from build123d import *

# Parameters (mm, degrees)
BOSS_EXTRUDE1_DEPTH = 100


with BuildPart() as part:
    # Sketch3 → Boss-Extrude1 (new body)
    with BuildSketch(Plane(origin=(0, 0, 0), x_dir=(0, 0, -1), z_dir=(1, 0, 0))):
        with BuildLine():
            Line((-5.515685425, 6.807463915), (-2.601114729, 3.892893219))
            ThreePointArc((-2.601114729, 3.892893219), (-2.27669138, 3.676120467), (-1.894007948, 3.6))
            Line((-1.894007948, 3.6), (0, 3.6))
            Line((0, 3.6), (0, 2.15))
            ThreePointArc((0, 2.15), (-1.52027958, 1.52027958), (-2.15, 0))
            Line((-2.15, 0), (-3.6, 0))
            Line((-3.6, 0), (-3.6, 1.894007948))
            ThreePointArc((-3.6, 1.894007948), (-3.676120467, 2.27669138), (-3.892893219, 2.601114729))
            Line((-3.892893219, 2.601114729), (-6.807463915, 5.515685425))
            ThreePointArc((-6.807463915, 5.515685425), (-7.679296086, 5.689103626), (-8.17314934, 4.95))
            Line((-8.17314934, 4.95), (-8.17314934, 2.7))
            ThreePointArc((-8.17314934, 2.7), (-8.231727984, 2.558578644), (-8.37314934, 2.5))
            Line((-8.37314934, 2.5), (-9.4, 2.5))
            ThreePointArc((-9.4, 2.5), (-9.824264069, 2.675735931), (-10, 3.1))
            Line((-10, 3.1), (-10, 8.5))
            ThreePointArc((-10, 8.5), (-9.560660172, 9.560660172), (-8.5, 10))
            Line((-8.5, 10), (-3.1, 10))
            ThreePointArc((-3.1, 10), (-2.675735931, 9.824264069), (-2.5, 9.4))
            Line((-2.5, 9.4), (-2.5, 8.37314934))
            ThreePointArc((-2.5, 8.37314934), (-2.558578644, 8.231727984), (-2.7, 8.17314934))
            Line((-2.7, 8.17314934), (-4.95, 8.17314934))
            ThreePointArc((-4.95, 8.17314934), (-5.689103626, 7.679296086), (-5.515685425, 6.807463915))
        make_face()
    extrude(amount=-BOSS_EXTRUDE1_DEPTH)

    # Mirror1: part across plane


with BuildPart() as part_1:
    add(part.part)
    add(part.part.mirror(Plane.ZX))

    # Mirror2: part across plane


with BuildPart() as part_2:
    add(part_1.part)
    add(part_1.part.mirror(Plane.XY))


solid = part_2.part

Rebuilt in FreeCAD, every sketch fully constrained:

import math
import FreeCAD as App
import Part
import Sketcher

V = App.Vector
Q = App.Units.Quantity

doc = App.newDocument("Part")
params = doc.addObject("Spreadsheet::Sheet", "Params")
for row, (alias, value) in enumerate([
    ("sketch1_radius", "1 mm"),
    ("sketch1_radius2", "0.8 mm"),
    ("sketch1_radius3", "0.2 mm"),
    ("sketch1_radius4", "0.6 mm"),
    ("sketch1_radius5", "1.5 mm"),
    ("pad1_length", "100 mm"),
], start=1):
    params.set(f"A{row}", alias)
    params.set(f"B{row}", "=" + value)
    params.setAlias(f"B{row}", alias)

body = doc.addObject("PartDesign::Body", "Body")

# Sketch on YZ plane
sketch1 = body.newObject("Sketcher::SketchObject", "Sketch")
sketch1.AttachmentSupport = (doc.getObject("YZ_Plane"), [""])
sketch1.MapMode = "FlatFace"
sketch1.addGeometry([
    Part.LineSegment(V(3.892893, 2.601115, 0), V(6.807464, 5.515685, 0)),  # 0
    Part.ArcOfCircle(Part.Circle(V(7.373149, 4.95, 0), V(0, 0, 1), 0.8), math.radians(0), math.radians(135)),  # 1
    Part.LineSegment(V(8.173149, 4.95, 0), V(8.173149, 2.7, 0)),  # 2
    Part.ArcOfCircle(Part.Circle(V(8.373149, 2.7, 0), V(0, 0, 1), 0.2), math.radians(-180), math.radians(-90)),  # 3
    Part.LineSegment(V(8.373149, 2.5, 0), V(9.4, 2.5, 0)),  # 4
    Part.ArcOfCircle(Part.Circle(V(9.4, 3.1, 0), V(0, 0, 1), 0.6), math.radians(-90), math.radians(0)),  # 5
    Part.LineSegment(V(10, 3.1, 0), V(10, 8.5, 0)),  # 6
    Part.ArcOfCircle(Part.Circle(V(8.5, 8.5, 0), V(0, 0, 1), 1.5), math.radians(0), math.radians(90)),  # 7
    Part.LineSegment(V(8.5, 10, 0), V(3.1, 10, 0)),  # 8
    Part.ArcOfCircle(Part.Circle(V(3.1, 9.4, 0), V(0, 0, 1), 0.6), math.radians(90), math.radians(180)),  # 9
    Part.LineSegment(V(2.5, 9.4, 0), V(2.5, 8.373149, 0)),  # 10
    Part.ArcOfCircle(Part.Circle(V(2.7, 8.373149, 0), V(0, 0, 1), 0.2), math.radians(-180), math.radians(-90)),  # 11
    Part.LineSegment(V(2.7, 8.173149, 0), V(4.95, 8.173149, 0)),  # 12
    Part.ArcOfCircle(Part.Circle(V(4.95, 7.373149, 0), V(0, 0, 1), 0.8), math.radians(-45), math.radians(90)),  # 13
    Part.LineSegment(V(5.515685, 6.807464, 0), V(2.601115, 3.892893, 0)),  # 14
    Part.ArcOfCircle(Part.Circle(V(1.894008, 4.6, 0), V(0, 0, 1), 1), math.radians(-90), math.radians(-45)),  # 15
    Part.LineSegment(V(1.894008, 3.6, 0), V(0, 3.6, 0)),  # 16
    Part.LineSegment(V(0, 3.6, 0), V(0, 2.15, 0)),  # 17
    Part.ArcOfCircle(Part.Circle(V(0, 0, 0), V(0, 0, 1), 2.15), math.radians(0), math.radians(90)),  # 18
    Part.LineSegment(V(2.15, 0, 0), V(3.6, 0, 0)),  # 19
    Part.LineSegment(V(3.6, 0, 0), V(3.6, 1.894008, 0)),  # 20
    Part.ArcOfCircle(Part.Circle(V(4.6, 1.894008, 0), V(0, 0, 1), 1), math.radians(135), math.radians(180)),  # 21
], False)
sketch1.addConstraint([
    Sketcher.Constraint("Tangent", 0, 2, 1, 2),
    Sketcher.Constraint("Tangent", 1, 1, 2, 1),
    Sketcher.Constraint("Tangent", 2, 2, 3, 1),
    Sketcher.Constraint("Tangent", 3, 2, 4, 1),
    Sketcher.Constraint("Tangent", 4, 2, 5, 1),
    Sketcher.Constraint("Tangent", 5, 2, 6, 1),
    Sketcher.Constraint("Tangent", 6, 2, 7, 1),
    Sketcher.Constraint("Tangent", 7, 2, 8, 1),
    Sketcher.Constraint("Tangent", 8, 2, 9, 1),
    Sketcher.Constraint("Tangent", 9, 2, 10, 1),
    Sketcher.Constraint("Tangent", 10, 2, 11, 1),
    Sketcher.Constraint("Tangent", 11, 2, 12, 1),
    Sketcher.Constraint("Tangent", 12, 2, 13, 2),
    Sketcher.Constraint("Tangent", 13, 1, 14, 1),
    Sketcher.Constraint("Tangent", 14, 2, 15, 2),
    Sketcher.Constraint("Tangent", 15, 1, 16, 1),
    Sketcher.Constraint("Coincident", 16, 2, 17, 1),
    Sketcher.Constraint("Coincident", 17, 2, 18, 2),
    Sketcher.Constraint("Coincident", 18, 1, 19, 1),
    Sketcher.Constraint("Coincident", 19, 2, 20, 1),
    Sketcher.Constraint("Tangent", 20, 2, 21, 2),
    Sketcher.Constraint("Tangent", 21, 1, 0, 1),
    Sketcher.Constraint("Vertical", 2),
    Sketcher.Constraint("Horizontal", 4),
    Sketcher.Constraint("Vertical", 6),
    Sketcher.Constraint("Horizontal", 8),
    Sketcher.Constraint("Vertical", 10),
    Sketcher.Constraint("Horizontal", 12),
    Sketcher.Constraint("Horizontal", 16),
    Sketcher.Constraint("Vertical", 17),
    Sketcher.Constraint("Horizontal", 19),
    Sketcher.Constraint("Vertical", 20),
    Sketcher.Constraint("Coincident", 18, 3, -1, 1),
    Sketcher.Constraint("Equal", 5, 9),
    Sketcher.Constraint("Equal", 3, 11),
    Sketcher.Constraint("Equal", 1, 13),
    Sketcher.Constraint("Equal", 15, 21),
    Sketcher.Constraint("PointOnObject", 16, 2, -2),
    Sketcher.Constraint("PointOnObject", 18, 1, -1),
    Sketcher.Constraint("Parallel", 0, 14),
    Sketcher.Constraint("Equal", 12, 2),
    Sketcher.Constraint("Equal", 8, 6),
    Sketcher.Constraint("Equal", 4, 10),
    Sketcher.Constraint("Equal", 19, 17),
    Sketcher.Constraint("Equal", 16, 20),
    Sketcher.Constraint("Equal", 0, 14),
    Sketcher.Constraint("Radius", 15, Q("1 mm")),
    Sketcher.Constraint("Radius", 1, Q("0.8 mm")),
    Sketcher.Constraint("Radius", 3, Q("0.2 mm")),
    Sketcher.Constraint("Radius", 5, Q("0.6 mm")),
    Sketcher.Constraint("Radius", 7, Q("1.5 mm")),
    Sketcher.Constraint("Radius", 18, Q("2.15 mm")),
    Sketcher.Constraint("DistanceX", 8, 2, 8, 1, Q("5.4 mm")),
    Sketcher.Constraint("DistanceX", -1, 1, 5, 2, Q("10 mm")),
    Sketcher.Constraint("DistanceX", 12, 1, 12, 2, Q("2.25 mm")),
    Sketcher.Constraint("DistanceX", 19, 1, 19, 2, Q("1.45 mm")),
    Sketcher.Constraint("DistanceX", 4, 1, 4, 2, Q("1.026851 mm")),
])
sketch1.setExpression("Constraints[46]", "Params.sketch1_radius")
sketch1.setExpression("Constraints[47]", "Params.sketch1_radius2")
sketch1.setExpression("Constraints[48]", "Params.sketch1_radius3")
sketch1.setExpression("Constraints[49]", "Params.sketch1_radius4")
sketch1.setExpression("Constraints[50]", "Params.sketch1_radius5")
pad1 = body.newObject("PartDesign::Pad", "Pad")
pad1.Profile = sketch1
pad1.setExpression("Length", "Params.pad1_length")
pad1.Reversed = True
body2 = doc.addObject("PartDesign::Body", "Body001")
doc.recompute()

body2.BaseFeature = body
doc.recompute()

mirroring = doc.addObject("Part::Mirroring", "Mirroring")
mirroring.Source = body
mirroring.Base = V(0, 0, 0)
mirroring.Normal = V(0, 1, 0)
body3 = doc.addObject("PartDesign::Body", "Body002")
body3.BaseFeature = mirroring
boolean = body2.newObject("PartDesign::Boolean", "Boolean")
boolean.Type = "Fuse"
boolean.addObjects([body3])
doc.recompute()
body4 = doc.addObject("PartDesign::Body", "Body003")
doc.recompute()

body4.BaseFeature = body2
doc.recompute()

mirroring2 = doc.addObject("Part::Mirroring", "Mirroring001")
mirroring2.Source = body2
mirroring2.Base = V(0, 0, 0)
mirroring2.Normal = V(0, 0, 1)
body5 = doc.addObject("PartDesign::Body", "Body004")
body5.BaseFeature = mirroring2
boolean2 = body4.newObject("PartDesign::Boolean", "Boolean001")
boolean2.Type = "Fuse"
boolean2.addObjects([body5])
doc.recompute()
mirroring.Visibility = False
mirroring2.Visibility = False

doc.recompute()
